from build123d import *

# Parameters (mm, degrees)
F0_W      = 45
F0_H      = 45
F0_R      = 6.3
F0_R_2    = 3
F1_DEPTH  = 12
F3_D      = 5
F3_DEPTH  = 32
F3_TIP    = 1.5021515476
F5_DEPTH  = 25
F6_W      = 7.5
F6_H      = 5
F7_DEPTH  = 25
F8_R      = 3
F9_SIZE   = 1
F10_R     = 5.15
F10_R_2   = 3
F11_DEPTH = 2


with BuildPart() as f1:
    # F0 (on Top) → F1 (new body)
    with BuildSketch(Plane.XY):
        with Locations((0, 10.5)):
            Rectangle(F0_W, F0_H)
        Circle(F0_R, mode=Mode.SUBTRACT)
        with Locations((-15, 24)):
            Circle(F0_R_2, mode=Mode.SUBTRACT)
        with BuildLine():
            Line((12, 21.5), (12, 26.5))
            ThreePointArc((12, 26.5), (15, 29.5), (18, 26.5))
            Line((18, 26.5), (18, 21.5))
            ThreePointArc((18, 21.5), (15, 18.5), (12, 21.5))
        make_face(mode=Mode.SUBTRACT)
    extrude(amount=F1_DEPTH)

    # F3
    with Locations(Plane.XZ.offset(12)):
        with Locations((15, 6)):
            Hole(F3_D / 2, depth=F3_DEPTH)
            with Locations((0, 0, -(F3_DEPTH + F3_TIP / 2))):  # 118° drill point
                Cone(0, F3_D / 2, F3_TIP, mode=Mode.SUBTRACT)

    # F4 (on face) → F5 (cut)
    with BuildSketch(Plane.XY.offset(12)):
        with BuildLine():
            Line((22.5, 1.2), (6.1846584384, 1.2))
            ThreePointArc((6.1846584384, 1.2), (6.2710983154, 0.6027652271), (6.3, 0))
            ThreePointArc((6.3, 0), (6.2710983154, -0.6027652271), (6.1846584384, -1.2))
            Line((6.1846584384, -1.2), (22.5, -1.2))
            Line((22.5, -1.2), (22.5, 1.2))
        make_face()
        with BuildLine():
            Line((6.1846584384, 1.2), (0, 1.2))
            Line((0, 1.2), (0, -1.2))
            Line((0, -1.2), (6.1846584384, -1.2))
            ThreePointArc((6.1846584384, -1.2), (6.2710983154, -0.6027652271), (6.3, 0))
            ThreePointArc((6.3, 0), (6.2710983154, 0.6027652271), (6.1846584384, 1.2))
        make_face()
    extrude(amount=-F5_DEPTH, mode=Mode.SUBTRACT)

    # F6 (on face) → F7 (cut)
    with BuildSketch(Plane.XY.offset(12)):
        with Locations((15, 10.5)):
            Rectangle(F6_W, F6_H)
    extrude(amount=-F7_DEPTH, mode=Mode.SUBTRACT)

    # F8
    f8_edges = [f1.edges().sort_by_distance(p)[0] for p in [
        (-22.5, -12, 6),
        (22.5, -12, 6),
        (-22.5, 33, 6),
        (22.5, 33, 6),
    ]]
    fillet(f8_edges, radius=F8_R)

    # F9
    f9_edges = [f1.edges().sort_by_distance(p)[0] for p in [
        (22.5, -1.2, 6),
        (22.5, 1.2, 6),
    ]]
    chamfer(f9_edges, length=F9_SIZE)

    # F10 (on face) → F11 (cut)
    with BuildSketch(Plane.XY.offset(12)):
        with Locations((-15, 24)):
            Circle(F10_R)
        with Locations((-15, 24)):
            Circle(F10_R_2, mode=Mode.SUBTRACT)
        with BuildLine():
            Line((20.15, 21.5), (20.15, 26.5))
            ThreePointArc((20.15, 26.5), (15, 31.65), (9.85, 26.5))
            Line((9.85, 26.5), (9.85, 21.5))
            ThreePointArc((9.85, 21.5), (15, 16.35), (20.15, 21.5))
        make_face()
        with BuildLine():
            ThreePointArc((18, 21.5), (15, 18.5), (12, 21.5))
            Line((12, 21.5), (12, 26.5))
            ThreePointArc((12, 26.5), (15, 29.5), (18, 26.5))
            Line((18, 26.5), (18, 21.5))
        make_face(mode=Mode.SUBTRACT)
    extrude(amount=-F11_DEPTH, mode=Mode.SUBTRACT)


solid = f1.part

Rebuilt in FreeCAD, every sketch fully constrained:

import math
import FreeCAD as App
import Part
import Sketcher
Q = App.Units.Quantity


def edges_at(feature, points):
    """Names of the edges that pass closest to the given points."""
    edges = feature.Shape.Edges
    near = lambda p: min(range(len(edges)), key=lambda i: edges[i].distToShape(Part.Vertex(*p))[0])
    return sorted({f"Edge{near(p) + 1}" for p in points})


def add_polygon(sketch, points):
    """Adds a closed chain of lines whose ends are joined by coincident constraints."""
    first, n = sketch.GeometryCount, len(points)
    for a, b in zip(points, points[1:] + points[:1]):
        sketch.addGeometry(Part.LineSegment(App.Vector(*a, 0), App.Vector(*b, 0)), False)
    for i in range(n):
        sketch.addConstraint(Sketcher.Constraint("Coincident", first + i, 2, first + (i + 1) % n, 1))

doc = App.newDocument("Part")
body = doc.addObject("PartDesign::Body", "Body")

sketch1 = body.newObject("Sketcher::SketchObject", "Sketch")
sketch1.AttachmentSupport = (doc.getObject("XY_Plane"), [""])
sketch1.MapMode = "FlatFace"
add_polygon(sketch1, [(-22.5, 33), (-22.5, -12), (22.5, -12), (22.5, 33)])
sketch1.addGeometry(Part.Circle(App.Vector(0, 0, 0), App.Vector(0, 0, 1), 6.3), False)
sketch1.addGeometry(Part.Circle(App.Vector(-15, 24, 0), App.Vector(0, 0, 1), 3), False)
sketch1.addGeometry(Part.ArcOfCircle(Part.Circle(App.Vector(15, 21.5, 0), App.Vector(0, 0, 1), 3), math.radians(180), math.radians(360)), False)
sketch1.addGeometry(Part.LineSegment(App.Vector(12, 21.5, 0), App.Vector(12, 26.5, 0)), False)
sketch1.addGeometry(Part.ArcOfCircle(Part.Circle(App.Vector(15, 26.5, 0), App.Vector(0, 0, 1), 3), math.radians(0), math.radians(180)), False)
sketch1.addGeometry(Part.LineSegment(App.Vector(18, 26.5, 0), App.Vector(18, 21.5, 0)), False)
sketch1.addConstraint(Sketcher.Constraint("Tangent", 6, 1, 7, 1))
sketch1.addConstraint(Sketcher.Constraint("Tangent", 7, 2, 8, 2))
sketch1.addConstraint(Sketcher.Constraint("Tangent", 8, 1, 9, 1))
sketch1.addConstraint(Sketcher.Constraint("Tangent", 9, 2, 6, 2))
sketch1.addConstraint(Sketcher.Constraint("Vertical", 0))
sketch1.addConstraint(Sketcher.Constraint("Horizontal", 1))
sketch1.addConstraint(Sketcher.Constraint("Vertical", 2))
sketch1.addConstraint(Sketcher.Constraint("Horizontal", 3))
sketch1.addConstraint(Sketcher.Constraint("Vertical", 7))
sketch1.addConstraint(Sketcher.Constraint("Vertical", 9))
sketch1.addConstraint(Sketcher.Constraint("Coincident", 4, 3, -1, 1))
sketch1.addConstraint(Sketcher.Constraint("Equal", 5, 6))
sketch1.addConstraint(Sketcher.Constraint("Equal", 3, 0))
sketch1.addConstraint(Sketcher.Constraint("Diameter", 5, Q("6 mm")))
sketch1.addConstraint(Sketcher.Constraint("Diameter", 4, Q("12.6 mm")))
sketch1.addConstraint(Sketcher.Constraint("DistanceX", 1, 1, 1, 2, Q("45 mm")))
sketch1.addConstraint(Sketcher.Constraint("DistanceY", 7, 1, 7, 2, Q("5 mm")))
sketch1.addConstraint(Sketcher.Constraint("DistanceX", 5, 3, -1, 1, Q("15 mm")))
sketch1.addConstraint(Sketcher.Constraint("DistanceY", -1, 1, 5, 3, Q("24 mm")))
sketch1.addConstraint(Sketcher.Constraint("DistanceX", -1, 1, 6, 3, Q("15 mm")))
sketch1.addConstraint(Sketcher.Constraint("DistanceY", 0, 2, -1, 1, Q("12 mm")))
sketch1.addConstraint(Sketcher.Constraint("DistanceY", -1, 1, 6, 3, Q("21.5 mm")))
sketch1.addConstraint(Sketcher.Constraint("DistanceX", 0, 2, -1, 1, Q("22.5 mm")))
pad1 = body.newObject("PartDesign::Pad", "Pad")
pad1.Profile = sketch1
pad1.Length = 12

sketch2 = body.newObject("Sketcher::SketchObject", "Sketch001")
sketch2.AttachmentSupport = (doc.getObject("XZ_Plane"), [""])
sketch2.MapMode = "FlatFace"
sketch2.AttachmentOffset = App.Placement(App.Vector(0, 0, 12), App.Rotation())
sketch2.addGeometry(Part.Circle(App.Vector(15, 6, 0), App.Vector(0, 0, 1), 2.5), False)
sketch2.addConstraint(Sketcher.Constraint("Diameter", 0, Q("5 mm")))
sketch2.addConstraint(Sketcher.Constraint("DistanceX", -1, 1, 0, 3, Q("15 mm")))
sketch2.addConstraint(Sketcher.Constraint("DistanceY", -1, 1, 0, 3, Q("6 mm")))
doc.recompute()
hole = body.newObject("PartDesign::Hole", "Hole")
hole.Profile = sketch2
hole.ThreadType = "None"
hole.Diameter = 5
hole.DepthType = "Dimension"
hole.Depth = 32
hole.DrillPoint = "Angled"
hole.DrillPointAngle = 118

sketch3 = body.newObject("Sketcher::SketchObject", "Sketch002")
sketch3.AttachmentSupport = (doc.getObject("XY_Plane"), [""])
sketch3.MapMode = "FlatFace"
sketch3.AttachmentOffset = App.Placement(App.Vector(0, 0, 12), App.Rotation())
add_polygon(sketch3, [(22.5, 1.2), (0, 1.2), (0, -1.2), (22.5, -1.2)])
sketch3.addConstraint(Sketcher.Constraint("Horizontal", 0))
sketch3.addConstraint(Sketcher.Constraint("Vertical", 1))
sketch3.addConstraint(Sketcher.Constraint("Horizontal", 2))
sketch3.addConstraint(Sketcher.Constraint("Vertical", 3))
sketch3.addConstraint(Sketcher.Constraint("Symmetric", 0, 2, 1, 2, -1, 1))
sketch3.addConstraint(Sketcher.Constraint("DistanceX", 0, 2, 0, 1, Q("22.5 mm")))
sketch3.addConstraint(Sketcher.Constraint("DistanceY", 1, 2, 1, 1, Q("2.4 mm")))
pocket1 = body.newObject("PartDesign::Pocket", "Pocket")
pocket1.Profile = sketch3
pocket1.Length = 25

sketch4 = body.newObject("Sketcher::SketchObject", "Sketch003")
sketch4.AttachmentSupport = (doc.getObject("XY_Plane"), [""])
sketch4.MapMode = "FlatFace"
sketch4.AttachmentOffset = App.Placement(App.Vector(0, 0, 12), App.Rotation())
add_polygon(sketch4, [(11, 13), (11, 8), (19, 8), (19, 13)])
sketch4.addConstraint(Sketcher.Constraint("Vertical", 0))
sketch4.addConstraint(Sketcher.Constraint("Horizontal", 1))
sketch4.addConstraint(Sketcher.Constraint("Vertical", 2))
sketch4.addConstraint(Sketcher.Constraint("Horizontal", 3))
sketch4.addConstraint(Sketcher.Constraint("DistanceY", 0, 2, 0, 1, Q("5 mm")))
sketch4.addConstraint(Sketcher.Constraint("DistanceX", 1, 1, 1, 2, Q("7.5 mm")))
sketch4.addConstraint(Sketcher.Constraint("DistanceY", -1, 1, 0, 2, Q("8 mm")))
sketch4.addConstraint(Sketcher.Constraint("DistanceX", -1, 1, 0, 2, Q("11.25 mm")))
pocket2 = body.newObject("PartDesign::Pocket", "Pocket001")
pocket2.Profile = sketch4
pocket2.Length = 25
doc.recompute()

fillet = body.newObject("PartDesign::Fillet", "Fillet")
fillet.Base = (pocket2, edges_at(pocket2, [
    (-22.5, -12, 6),
    (22.5, -12, 6),
    (-22.5, 33, 6),
    (22.5, 33, 6),
]))
fillet.Radius = 3
doc.recompute()

chamfer = body.newObject("PartDesign::Chamfer", "Chamfer")
chamfer.Base = (fillet, edges_at(fillet, [(22.5, -1.2, 6), (22.5, 1.2, 6)]))
chamfer.Size = 1

sketch5 = body.newObject("Sketcher::SketchObject", "Sketch004")
sketch5.AttachmentSupport = (doc.getObject("XY_Plane"), [""])
sketch5.MapMode = "FlatFace"
sketch5.AttachmentOffset = App.Placement(App.Vector(0, 0, 12), App.Rotation())
sketch5.addGeometry(Part.Circle(App.Vector(-15, 24, 0), App.Vector(0, 0, 1), 5.2), False)
sketch5.addGeometry(Part.Circle(App.Vector(-15, 24, 0), App.Vector(0, 0, 1), 3), False)
sketch5.addGeometry(Part.LineSegment(App.Vector(20.1, 21.5, 0), App.Vector(20.1, 26.5, 0)), False)
sketch5.addGeometry(Part.ArcOfCircle(Part.Circle(App.Vector(15, 26.5, 0), App.Vector(0, 0, 1), 5.2), math.radians(0), math.radians(180)), False)
sketch5.addGeometry(Part.LineSegment(App.Vector(9.8, 26.5, 0), App.Vector(9.8, 21.5, 0)), False)
sketch5.addGeometry(Part.ArcOfCircle(Part.Circle(App.Vector(15, 21.5, 0), App.Vector(0, 0, 1), 5.2), math.radians(180), math.radians(360)), False)
sketch5.addGeometry(Part.LineSegment(App.Vector(18, 26.5, 0), App.Vector(18, 21.5, 0)), False)
sketch5.addGeometry(Part.ArcOfCircle(Part.Circle(App.Vector(15, 21.5, 0), App.Vector(0, 0, 1), 3), math.radians(180), math.radians(360)), False)
sketch5.addGeometry(Part.LineSegment(App.Vector(12, 21.5, 0), App.Vector(12, 26.5, 0)), False)
sketch5.addGeometry(Part.ArcOfCircle(Part.Circle(App.Vector(15, 26.5, 0), App.Vector(0, 0, 1), 3), math.radians(0), math.radians(180)), False)
sketch5.addConstraint(Sketcher.Constraint("Tangent", 2, 2, 3, 1))
sketch5.addConstraint(Sketcher.Constraint("Tangent", 3, 2, 4, 1))
sketch5.addConstraint(Sketcher.Constraint("Tangent", 4, 2, 5, 1))
sketch5.addConstraint(Sketcher.Constraint("Tangent", 5, 2, 2, 1))
sketch5.addConstraint(Sketcher.Constraint("Tangent", 6, 2, 7, 2))
sketch5.addConstraint(Sketcher.Constraint("Tangent", 7, 1, 8, 1))
sketch5.addConstraint(Sketcher.Constraint("Tangent", 8, 2, 9, 2))
sketch5.addConstraint(Sketcher.Constraint("Tangent", 9, 1, 6, 1))
sketch5.addConstraint(Sketcher.Constraint("Vertical", 2))
sketch5.addConstraint(Sketcher.Constraint("Vertical", 4))
sketch5.addConstraint(Sketcher.Constraint("Vertical", 6))
sketch5.addConstraint(Sketcher.Constraint("Vertical", 8))
sketch5.addConstraint(Sketcher.Constraint("Coincident", 1, 3, 0, 3))
sketch5.addConstraint(Sketcher.Constraint("Coincident", 7, 3, 5, 3))
sketch5.addConstraint(Sketcher.Constraint("Equal", 0, 3))
sketch5.addConstraint(Sketcher.Constraint("Equal", 1, 7))
sketch5.addConstraint(Sketcher.Constraint("Horizontal", 9, 3, 2, 2))
sketch5.addConstraint(Sketcher.Constraint("Diameter", 1, Q("6 mm")))
sketch5.addConstraint(Sketcher.Constraint("Diameter", 0, Q("10.3 mm")))
sketch5.addConstraint(Sketcher.Constraint("DistanceY", 2, 1, 2, 2, Q("5 mm")))
sketch5.addConstraint(Sketcher.Constraint("DistanceX", 0, 3, -1, 1, Q("15 mm")))
sketch5.addConstraint(Sketcher.Constraint("DistanceY", -1, 1, 0, 3, Q("24 mm")))
sketch5.addConstraint(Sketcher.Constraint("DistanceX", -1, 1, 3, 3, Q("15 mm")))
sketch5.addConstraint(Sketcher.Constraint("DistanceY", -1, 1, 3, 3, Q("26.5 mm")))
pocket3 = body.newObject("PartDesign::Pocket", "Pocket002")
pocket3.Profile = sketch5
pocket3.Length = 2

doc.recompute()
